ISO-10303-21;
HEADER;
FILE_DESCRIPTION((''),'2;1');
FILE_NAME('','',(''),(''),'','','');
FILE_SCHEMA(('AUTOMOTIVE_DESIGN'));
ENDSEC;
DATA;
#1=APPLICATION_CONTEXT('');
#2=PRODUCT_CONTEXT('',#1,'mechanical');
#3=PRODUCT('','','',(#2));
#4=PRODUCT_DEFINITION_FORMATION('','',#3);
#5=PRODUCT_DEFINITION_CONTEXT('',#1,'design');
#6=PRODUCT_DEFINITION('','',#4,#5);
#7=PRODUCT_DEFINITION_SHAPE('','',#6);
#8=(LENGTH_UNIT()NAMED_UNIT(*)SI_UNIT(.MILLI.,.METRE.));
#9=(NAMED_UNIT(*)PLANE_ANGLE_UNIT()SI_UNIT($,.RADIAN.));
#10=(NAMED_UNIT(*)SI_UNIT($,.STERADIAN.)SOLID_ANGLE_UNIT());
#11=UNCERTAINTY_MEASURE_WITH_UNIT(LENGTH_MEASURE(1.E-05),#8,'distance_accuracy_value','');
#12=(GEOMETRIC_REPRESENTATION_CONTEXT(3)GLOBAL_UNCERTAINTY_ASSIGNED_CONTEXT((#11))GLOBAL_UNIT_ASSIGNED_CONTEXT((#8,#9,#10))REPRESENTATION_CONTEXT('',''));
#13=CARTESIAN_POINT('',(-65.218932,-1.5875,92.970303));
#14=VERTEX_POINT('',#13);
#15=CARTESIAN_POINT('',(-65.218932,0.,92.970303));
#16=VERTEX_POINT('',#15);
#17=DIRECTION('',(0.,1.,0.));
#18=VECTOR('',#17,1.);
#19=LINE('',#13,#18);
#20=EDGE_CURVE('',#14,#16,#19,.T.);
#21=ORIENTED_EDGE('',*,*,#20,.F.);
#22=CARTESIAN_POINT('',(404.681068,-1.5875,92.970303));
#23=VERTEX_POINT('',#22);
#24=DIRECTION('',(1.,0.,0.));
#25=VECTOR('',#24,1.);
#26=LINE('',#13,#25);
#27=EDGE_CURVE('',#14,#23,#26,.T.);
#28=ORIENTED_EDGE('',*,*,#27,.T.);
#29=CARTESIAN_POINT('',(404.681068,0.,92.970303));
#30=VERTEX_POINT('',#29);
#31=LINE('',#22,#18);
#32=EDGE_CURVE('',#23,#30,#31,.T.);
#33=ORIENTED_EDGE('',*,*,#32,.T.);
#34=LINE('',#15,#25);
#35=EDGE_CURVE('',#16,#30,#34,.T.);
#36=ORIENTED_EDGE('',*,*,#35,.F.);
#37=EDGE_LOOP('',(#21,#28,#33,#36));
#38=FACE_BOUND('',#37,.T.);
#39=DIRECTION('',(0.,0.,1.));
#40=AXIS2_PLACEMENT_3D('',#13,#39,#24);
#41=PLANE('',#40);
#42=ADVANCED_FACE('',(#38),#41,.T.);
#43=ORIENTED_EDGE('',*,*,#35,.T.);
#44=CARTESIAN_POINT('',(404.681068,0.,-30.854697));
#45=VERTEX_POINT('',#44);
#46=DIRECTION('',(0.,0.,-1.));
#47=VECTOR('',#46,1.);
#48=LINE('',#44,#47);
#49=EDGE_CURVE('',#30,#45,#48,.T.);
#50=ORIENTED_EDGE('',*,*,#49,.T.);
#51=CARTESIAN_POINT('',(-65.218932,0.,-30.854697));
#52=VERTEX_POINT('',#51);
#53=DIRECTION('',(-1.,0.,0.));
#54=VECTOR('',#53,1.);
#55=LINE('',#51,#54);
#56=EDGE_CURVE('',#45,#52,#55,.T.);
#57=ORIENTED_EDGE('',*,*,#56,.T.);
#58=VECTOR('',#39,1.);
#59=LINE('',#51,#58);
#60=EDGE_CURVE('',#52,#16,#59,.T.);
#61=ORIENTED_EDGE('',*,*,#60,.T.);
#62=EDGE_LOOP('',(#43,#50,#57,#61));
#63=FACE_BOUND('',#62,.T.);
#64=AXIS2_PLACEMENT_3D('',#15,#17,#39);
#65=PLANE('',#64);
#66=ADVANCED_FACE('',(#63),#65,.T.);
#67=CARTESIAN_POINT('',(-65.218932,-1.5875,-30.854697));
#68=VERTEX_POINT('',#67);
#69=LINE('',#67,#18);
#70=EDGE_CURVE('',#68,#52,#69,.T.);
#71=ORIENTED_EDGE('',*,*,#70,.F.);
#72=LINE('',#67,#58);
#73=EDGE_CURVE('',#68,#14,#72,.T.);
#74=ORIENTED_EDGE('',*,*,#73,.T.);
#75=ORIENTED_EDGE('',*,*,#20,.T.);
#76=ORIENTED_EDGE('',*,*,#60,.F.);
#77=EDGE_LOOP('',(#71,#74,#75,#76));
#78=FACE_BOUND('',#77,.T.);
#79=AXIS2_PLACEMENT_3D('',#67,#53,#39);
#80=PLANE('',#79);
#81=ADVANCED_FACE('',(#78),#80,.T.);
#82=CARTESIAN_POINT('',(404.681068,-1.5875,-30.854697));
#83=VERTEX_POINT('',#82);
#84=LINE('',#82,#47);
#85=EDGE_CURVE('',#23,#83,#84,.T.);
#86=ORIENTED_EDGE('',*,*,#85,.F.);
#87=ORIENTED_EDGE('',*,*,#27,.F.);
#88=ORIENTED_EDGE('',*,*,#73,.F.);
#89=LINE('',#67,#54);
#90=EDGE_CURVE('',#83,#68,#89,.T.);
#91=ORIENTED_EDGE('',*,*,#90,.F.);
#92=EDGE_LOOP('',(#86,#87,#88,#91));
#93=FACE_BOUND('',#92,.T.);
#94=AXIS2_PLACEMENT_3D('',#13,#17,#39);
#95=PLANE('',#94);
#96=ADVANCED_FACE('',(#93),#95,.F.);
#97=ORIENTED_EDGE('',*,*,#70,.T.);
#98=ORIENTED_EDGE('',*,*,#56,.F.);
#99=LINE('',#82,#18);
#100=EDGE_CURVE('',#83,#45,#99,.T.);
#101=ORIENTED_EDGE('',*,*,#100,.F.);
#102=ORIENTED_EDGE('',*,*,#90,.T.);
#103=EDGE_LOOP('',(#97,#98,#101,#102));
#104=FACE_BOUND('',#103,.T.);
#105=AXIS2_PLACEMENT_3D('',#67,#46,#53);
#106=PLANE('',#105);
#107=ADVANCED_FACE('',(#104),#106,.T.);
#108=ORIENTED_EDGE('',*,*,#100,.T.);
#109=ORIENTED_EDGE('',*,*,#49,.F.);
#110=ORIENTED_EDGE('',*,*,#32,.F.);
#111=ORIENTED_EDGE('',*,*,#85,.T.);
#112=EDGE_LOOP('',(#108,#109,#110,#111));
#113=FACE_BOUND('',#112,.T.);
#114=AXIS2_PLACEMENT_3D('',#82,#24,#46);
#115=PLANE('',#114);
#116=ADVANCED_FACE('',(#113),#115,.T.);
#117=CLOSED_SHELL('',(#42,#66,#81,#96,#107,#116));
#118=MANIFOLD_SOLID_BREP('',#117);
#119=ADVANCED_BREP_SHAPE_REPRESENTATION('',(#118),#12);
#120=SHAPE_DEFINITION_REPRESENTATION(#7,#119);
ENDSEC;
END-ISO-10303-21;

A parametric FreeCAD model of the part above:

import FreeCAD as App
import Part
import Sketcher

V = App.Vector
Q = App.Units.Quantity

doc = App.newDocument("Part")
body = doc.addObject("PartDesign::Body", "Body")

sketch1 = doc.addObject("Sketcher::SketchObject", "Sketch")
body.addObject(sketch1)
sketch1.AttachmentSupport = (doc.XZ_Plane, [""])
sketch1.MapMode = "FlatFace"
sketch1.addGeometry(Part.LineSegment(V(-65.218932, -30.854697, 0), V(-65.218932, 92.970303, 0)), False)
sketch1.addGeometry(Part.LineSegment(V(-65.218932, 92.970303, 0), V(404.681068, 92.970303, 0)), False)
sketch1.addGeometry(Part.LineSegment(V(404.681068, 92.970303, 0), V(404.681068, -30.854697, 0)), False)
sketch1.addGeometry(Part.LineSegment(V(404.681068, -30.854697, 0), V(-65.218932, -30.854697, 0)), False)
sketch1.addConstraint(Sketcher.Constraint("Coincident", 0, 2, 1, 1))
sketch1.addConstraint(Sketcher.Constraint("Coincident", 1, 2, 2, 1))
sketch1.addConstraint(Sketcher.Constraint("Coincident", 2, 2, 3, 1))
sketch1.addConstraint(Sketcher.Constraint("Coincident", 3, 2, 0, 1))
sketch1.addConstraint(Sketcher.Constraint("Vertical", 0))
sketch1.addConstraint(Sketcher.Constraint("Horizontal", 1))
sketch1.addConstraint(Sketcher.Constraint("Vertical", 2))
sketch1.addConstraint(Sketcher.Constraint("Horizontal", 3))
sketch1.addConstraint(Sketcher.Constraint("DistanceX", 1, 1, 1, 2, Q("18.5 in")))
sketch1.addConstraint(Sketcher.Constraint("DistanceY", 0, 1, 0, 2, Q("4.875 in")))
sketch1.addConstraint(Sketcher.Constraint("DistanceX", 0, 2, -1, 1, 65.218932))
sketch1.addConstraint(Sketcher.Constraint("DistanceY", -1, 1, 0, 2, 92.970303))
pad1 = doc.addObject("PartDesign::Pad", "Pad")
body.addObject(pad1)
pad1.Profile = sketch1
pad1.Length = Q("0.0625 in")

doc.recompute()
